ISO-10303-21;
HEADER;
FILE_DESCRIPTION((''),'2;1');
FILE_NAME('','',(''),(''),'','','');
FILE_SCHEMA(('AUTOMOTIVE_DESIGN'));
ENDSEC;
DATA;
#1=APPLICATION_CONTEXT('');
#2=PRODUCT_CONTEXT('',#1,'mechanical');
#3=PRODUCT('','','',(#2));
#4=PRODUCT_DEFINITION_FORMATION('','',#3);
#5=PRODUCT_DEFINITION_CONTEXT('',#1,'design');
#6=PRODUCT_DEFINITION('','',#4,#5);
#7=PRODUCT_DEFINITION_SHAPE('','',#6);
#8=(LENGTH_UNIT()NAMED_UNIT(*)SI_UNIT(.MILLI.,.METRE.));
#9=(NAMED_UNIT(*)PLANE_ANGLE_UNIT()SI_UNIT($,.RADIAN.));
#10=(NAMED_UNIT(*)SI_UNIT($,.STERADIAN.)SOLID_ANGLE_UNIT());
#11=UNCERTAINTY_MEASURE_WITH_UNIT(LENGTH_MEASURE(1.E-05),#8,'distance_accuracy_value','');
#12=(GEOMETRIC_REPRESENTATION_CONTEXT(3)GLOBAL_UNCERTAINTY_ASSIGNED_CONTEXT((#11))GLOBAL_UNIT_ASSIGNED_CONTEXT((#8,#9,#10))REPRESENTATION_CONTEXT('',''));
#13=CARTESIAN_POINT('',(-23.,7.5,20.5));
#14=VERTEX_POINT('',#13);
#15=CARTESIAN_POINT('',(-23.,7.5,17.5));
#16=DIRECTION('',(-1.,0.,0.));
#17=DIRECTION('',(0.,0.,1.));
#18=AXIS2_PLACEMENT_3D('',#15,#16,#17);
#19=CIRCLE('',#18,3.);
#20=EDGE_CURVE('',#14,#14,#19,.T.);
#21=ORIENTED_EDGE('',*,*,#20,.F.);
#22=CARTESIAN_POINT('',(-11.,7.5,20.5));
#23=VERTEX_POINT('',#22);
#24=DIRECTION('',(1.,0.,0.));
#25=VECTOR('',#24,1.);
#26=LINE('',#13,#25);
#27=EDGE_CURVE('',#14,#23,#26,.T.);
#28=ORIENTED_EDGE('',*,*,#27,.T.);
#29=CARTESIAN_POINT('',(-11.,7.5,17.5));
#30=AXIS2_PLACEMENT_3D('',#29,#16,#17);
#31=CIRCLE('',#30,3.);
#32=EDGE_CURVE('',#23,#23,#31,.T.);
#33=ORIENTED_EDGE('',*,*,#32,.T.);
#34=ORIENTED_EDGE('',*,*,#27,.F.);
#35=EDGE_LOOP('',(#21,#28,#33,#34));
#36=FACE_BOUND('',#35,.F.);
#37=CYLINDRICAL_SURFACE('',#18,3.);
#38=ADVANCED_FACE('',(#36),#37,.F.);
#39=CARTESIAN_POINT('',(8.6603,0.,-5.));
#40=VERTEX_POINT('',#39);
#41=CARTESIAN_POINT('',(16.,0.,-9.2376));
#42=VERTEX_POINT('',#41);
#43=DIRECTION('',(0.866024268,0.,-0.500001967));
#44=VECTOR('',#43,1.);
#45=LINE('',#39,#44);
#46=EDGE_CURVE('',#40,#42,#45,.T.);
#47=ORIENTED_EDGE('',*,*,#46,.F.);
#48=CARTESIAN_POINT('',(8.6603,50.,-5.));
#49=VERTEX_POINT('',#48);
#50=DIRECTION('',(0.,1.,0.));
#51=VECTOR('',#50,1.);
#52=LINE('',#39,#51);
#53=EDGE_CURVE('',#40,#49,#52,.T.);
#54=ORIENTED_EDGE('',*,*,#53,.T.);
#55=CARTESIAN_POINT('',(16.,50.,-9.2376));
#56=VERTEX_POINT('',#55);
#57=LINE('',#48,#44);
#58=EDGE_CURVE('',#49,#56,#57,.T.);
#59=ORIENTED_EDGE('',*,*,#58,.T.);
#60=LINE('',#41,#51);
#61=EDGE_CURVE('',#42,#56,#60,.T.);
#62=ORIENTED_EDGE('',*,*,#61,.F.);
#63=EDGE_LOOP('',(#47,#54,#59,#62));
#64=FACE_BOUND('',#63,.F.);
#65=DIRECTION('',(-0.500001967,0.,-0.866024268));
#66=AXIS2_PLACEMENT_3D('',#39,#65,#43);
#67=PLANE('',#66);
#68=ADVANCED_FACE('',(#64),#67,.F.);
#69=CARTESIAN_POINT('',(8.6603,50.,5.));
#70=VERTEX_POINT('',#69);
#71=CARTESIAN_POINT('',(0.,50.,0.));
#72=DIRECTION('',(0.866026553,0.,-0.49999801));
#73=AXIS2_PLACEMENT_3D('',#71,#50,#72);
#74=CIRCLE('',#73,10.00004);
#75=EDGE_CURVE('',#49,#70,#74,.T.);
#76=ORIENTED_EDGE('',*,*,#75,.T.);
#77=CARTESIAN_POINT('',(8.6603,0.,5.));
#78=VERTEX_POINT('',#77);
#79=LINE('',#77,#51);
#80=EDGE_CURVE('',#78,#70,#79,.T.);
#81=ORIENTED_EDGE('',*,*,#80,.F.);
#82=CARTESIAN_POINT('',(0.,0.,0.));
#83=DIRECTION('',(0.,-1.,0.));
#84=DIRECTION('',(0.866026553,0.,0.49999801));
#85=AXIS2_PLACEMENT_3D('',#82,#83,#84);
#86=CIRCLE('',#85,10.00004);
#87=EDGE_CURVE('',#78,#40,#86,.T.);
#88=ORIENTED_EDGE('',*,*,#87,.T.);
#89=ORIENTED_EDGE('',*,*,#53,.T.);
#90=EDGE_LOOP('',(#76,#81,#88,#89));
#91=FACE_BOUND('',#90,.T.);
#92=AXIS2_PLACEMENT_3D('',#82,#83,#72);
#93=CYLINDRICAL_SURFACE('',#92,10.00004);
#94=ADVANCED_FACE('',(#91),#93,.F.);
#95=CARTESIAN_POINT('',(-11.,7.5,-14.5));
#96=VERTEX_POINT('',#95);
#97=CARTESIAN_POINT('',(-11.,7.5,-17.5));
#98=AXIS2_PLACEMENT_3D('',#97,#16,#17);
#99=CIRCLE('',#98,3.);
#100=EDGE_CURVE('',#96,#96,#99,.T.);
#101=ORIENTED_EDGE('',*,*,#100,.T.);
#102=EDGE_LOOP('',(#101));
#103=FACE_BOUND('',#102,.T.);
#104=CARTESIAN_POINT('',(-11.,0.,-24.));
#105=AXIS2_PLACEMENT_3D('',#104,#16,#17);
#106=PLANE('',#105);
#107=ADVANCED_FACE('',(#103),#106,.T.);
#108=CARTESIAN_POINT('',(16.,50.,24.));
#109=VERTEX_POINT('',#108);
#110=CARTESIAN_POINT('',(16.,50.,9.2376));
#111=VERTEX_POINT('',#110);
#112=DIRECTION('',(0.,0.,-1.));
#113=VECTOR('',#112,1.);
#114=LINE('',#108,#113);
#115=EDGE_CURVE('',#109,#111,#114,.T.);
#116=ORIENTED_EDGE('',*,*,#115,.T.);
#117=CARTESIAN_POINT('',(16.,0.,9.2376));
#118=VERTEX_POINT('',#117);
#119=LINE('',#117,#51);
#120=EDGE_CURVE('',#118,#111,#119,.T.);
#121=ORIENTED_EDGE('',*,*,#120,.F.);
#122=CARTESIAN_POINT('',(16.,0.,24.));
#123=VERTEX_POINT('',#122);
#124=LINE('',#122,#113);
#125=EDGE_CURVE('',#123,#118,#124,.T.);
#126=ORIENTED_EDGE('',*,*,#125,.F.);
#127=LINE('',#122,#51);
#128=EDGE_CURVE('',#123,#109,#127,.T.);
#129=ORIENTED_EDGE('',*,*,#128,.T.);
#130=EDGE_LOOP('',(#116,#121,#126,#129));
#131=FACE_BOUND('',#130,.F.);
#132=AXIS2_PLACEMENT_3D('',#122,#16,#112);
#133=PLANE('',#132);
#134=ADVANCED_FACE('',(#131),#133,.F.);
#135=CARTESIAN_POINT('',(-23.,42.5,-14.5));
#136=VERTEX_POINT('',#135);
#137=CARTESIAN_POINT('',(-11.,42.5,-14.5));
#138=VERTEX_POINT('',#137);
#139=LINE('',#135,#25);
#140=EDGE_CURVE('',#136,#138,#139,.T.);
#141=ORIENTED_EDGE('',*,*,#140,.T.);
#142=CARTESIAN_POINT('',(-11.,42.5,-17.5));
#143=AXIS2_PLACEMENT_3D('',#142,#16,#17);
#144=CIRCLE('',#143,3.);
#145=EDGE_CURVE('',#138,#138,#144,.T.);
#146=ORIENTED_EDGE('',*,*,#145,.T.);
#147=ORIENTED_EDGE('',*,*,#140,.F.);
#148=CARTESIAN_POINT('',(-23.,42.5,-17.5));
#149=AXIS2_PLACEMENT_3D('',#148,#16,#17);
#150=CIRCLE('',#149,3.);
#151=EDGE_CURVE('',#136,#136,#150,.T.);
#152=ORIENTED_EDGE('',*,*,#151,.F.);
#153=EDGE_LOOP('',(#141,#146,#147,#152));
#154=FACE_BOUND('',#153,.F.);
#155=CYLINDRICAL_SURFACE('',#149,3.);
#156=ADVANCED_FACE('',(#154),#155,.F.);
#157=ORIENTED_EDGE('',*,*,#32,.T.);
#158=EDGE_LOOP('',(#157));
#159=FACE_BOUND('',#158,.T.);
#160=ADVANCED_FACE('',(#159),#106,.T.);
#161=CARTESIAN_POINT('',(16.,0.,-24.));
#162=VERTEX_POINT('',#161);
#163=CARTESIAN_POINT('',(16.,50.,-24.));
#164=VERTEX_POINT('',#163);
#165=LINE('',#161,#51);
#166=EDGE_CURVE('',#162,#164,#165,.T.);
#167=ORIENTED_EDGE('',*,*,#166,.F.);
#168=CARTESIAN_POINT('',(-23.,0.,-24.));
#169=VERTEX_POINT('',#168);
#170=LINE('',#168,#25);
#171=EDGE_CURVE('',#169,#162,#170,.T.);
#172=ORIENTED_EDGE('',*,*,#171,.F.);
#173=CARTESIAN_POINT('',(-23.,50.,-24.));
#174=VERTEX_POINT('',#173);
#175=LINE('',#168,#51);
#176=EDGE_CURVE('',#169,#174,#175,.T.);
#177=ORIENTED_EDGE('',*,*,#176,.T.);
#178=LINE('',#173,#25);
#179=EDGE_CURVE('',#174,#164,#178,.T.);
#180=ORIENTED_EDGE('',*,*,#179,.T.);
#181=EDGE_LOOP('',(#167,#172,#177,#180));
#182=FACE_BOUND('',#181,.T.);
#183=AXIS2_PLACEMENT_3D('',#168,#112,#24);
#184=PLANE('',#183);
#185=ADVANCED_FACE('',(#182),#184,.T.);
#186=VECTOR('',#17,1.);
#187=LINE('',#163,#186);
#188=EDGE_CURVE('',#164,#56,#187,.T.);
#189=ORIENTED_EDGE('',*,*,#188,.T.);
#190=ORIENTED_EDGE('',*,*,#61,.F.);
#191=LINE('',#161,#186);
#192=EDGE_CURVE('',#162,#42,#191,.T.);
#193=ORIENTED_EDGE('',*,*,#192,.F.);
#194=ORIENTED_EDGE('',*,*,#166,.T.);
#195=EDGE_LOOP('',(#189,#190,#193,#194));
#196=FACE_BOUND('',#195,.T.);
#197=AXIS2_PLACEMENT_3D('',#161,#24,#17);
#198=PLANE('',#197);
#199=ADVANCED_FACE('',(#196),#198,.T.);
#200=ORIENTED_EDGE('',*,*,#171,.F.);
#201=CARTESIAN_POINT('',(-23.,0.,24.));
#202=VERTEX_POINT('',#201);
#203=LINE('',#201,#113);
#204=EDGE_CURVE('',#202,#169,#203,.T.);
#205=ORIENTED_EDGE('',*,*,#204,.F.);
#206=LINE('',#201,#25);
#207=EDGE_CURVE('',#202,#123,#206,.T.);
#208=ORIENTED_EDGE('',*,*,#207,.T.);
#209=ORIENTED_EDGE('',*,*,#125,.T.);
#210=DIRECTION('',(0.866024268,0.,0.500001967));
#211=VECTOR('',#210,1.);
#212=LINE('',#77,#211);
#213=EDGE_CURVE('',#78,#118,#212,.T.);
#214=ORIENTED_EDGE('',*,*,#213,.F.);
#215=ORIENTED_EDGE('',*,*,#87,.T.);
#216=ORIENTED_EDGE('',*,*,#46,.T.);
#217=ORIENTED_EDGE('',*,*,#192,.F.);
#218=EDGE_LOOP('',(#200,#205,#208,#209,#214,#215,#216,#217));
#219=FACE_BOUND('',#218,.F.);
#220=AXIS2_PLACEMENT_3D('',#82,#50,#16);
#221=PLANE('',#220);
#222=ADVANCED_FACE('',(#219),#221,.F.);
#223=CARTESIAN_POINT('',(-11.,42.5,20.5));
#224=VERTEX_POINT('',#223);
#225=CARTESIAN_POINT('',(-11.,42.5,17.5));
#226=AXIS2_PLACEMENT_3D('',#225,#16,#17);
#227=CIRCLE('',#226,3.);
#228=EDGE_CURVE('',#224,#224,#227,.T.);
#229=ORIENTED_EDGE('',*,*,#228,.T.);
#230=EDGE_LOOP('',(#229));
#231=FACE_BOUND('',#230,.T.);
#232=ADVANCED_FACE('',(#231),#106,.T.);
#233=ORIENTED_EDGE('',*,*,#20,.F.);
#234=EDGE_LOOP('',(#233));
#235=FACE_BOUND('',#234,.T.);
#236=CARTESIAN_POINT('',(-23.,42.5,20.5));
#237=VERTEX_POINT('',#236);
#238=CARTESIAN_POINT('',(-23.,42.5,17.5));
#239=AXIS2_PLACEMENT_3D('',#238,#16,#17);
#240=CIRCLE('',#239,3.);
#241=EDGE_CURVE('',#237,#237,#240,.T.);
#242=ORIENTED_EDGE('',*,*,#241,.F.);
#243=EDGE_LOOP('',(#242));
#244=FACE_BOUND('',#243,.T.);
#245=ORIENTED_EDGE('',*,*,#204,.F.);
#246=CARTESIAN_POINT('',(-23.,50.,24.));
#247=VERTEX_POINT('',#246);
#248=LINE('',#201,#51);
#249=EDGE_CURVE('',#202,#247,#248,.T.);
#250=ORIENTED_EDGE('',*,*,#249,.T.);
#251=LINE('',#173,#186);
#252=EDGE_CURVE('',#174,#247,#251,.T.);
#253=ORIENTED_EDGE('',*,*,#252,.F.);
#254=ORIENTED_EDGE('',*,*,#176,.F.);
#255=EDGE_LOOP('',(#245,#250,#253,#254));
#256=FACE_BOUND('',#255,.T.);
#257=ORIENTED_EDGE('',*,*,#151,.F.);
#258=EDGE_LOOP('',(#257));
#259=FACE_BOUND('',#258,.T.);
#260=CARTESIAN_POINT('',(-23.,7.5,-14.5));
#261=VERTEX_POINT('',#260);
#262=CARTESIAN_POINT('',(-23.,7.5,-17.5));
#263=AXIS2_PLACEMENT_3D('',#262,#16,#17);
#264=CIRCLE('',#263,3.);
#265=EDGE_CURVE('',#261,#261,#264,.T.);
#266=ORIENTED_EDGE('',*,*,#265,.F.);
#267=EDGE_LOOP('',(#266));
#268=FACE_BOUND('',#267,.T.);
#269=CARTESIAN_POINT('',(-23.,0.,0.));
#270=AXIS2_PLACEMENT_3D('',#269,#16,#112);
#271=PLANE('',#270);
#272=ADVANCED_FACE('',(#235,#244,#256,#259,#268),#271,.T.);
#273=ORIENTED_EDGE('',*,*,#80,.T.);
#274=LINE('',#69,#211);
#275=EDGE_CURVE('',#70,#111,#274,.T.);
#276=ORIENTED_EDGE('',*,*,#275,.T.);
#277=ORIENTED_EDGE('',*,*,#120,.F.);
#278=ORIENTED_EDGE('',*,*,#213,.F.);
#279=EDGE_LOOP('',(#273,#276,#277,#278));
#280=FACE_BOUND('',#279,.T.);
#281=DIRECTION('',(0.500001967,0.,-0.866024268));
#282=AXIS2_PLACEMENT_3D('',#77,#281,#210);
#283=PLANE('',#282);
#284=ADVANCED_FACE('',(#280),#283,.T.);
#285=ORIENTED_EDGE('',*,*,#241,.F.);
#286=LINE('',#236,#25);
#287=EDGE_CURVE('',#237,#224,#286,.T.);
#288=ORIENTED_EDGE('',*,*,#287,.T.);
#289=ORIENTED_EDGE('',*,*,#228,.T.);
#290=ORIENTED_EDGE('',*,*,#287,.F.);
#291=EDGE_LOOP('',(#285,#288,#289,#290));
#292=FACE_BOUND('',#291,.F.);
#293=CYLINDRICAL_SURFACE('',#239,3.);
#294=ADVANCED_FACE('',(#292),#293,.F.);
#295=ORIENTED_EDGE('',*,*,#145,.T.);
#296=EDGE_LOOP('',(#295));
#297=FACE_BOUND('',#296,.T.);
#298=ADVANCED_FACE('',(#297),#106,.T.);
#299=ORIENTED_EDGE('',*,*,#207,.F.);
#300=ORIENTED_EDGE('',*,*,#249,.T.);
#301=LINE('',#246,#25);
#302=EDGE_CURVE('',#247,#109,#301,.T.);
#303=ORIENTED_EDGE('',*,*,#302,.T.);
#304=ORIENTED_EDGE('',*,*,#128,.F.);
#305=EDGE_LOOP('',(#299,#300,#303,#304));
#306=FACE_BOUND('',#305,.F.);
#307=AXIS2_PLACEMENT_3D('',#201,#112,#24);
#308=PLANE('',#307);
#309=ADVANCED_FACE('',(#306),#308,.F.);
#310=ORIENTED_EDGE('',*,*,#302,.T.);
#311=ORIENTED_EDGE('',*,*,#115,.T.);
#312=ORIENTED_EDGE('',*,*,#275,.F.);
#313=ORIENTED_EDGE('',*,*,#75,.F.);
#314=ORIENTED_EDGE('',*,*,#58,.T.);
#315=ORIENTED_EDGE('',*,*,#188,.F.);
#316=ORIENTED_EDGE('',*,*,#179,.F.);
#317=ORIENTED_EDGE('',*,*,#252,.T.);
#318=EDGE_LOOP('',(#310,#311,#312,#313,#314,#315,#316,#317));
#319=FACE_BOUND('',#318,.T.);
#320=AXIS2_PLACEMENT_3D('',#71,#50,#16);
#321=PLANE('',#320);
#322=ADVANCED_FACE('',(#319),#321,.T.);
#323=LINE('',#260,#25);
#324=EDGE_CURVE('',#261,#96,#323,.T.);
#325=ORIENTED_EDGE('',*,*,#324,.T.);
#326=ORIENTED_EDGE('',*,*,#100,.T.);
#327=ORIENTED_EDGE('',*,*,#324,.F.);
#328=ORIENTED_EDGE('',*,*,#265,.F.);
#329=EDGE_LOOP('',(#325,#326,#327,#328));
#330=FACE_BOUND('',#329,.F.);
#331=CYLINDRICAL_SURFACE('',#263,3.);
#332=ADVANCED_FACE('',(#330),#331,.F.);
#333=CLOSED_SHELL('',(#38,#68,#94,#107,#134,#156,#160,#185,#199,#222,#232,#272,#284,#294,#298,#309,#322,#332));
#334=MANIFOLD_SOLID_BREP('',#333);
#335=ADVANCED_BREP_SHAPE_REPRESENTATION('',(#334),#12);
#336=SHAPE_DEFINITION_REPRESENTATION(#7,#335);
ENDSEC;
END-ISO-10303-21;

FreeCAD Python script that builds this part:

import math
import FreeCAD as App
import Part
import Sketcher
from FreeCAD import Vector
Q = App.Units.Quantity

doc = App.newDocument("Part")
body = doc.addObject("PartDesign::Body", "Body")

# Sketch on XZ plane
sketch1 = body.newObject("Sketcher::SketchObject", "Sketch")
sketch1.AttachmentSupport = (doc.getObject("XZ_Plane"), [""])
sketch1.MapMode = "FlatFace"
sketch1.addGeometry([
    Part.LineSegment(Vector(8.6603, -5, 0), Vector(16, -9.2376, 0)),  # 0
    Part.LineSegment(Vector(16, -9.2376, 0), Vector(16, -24, 0)),  # 1
    Part.LineSegment(Vector(16, -24, 0), Vector(-23, -24, 0)),  # 2
    Part.LineSegment(Vector(-23, -24, 0), Vector(-23, 24, 0)),  # 3
    Part.LineSegment(Vector(-23, 24, 0), Vector(16, 24, 0)),  # 4
    Part.LineSegment(Vector(16, 24, 0), Vector(16, 9.2376, 0)),  # 5
    Part.LineSegment(Vector(16, 9.2376, 0), Vector(8.6603, 5, 0)),  # 6
    Part.ArcOfCircle(Part.Circle(Vector(0, 0, 0), Vector(0, 0, 1), 10.00004), math.radians(29.999868), math.radians(330.000132)),  # 7
], False)
sketch1.addConstraint([
    Sketcher.Constraint("Coincident", 0, 2, 1, 1),
    Sketcher.Constraint("Coincident", 1, 2, 2, 1),
    Sketcher.Constraint("Coincident", 2, 2, 3, 1),
    Sketcher.Constraint("Coincident", 3, 2, 4, 1),
    Sketcher.Constraint("Coincident", 4, 2, 5, 1),
    Sketcher.Constraint("Coincident", 5, 2, 6, 1),
    Sketcher.Constraint("Coincident", 6, 2, 7, 1),
    Sketcher.Constraint("Coincident", 7, 2, 0, 1),
    Sketcher.Constraint("Vertical", 1),
    Sketcher.Constraint("Horizontal", 2),
    Sketcher.Constraint("Vertical", 3),
    Sketcher.Constraint("Horizontal", 4),
    Sketcher.Constraint("Vertical", 5),
    Sketcher.Constraint("Coincident", 7, 3, -1, 1),
    Sketcher.Constraint("Symmetric", 1, 2, 4, 2, -1),
    Sketcher.Constraint("Vertical", 6, 2, 7, 2),
    Sketcher.Constraint("Equal", 1, 5),
    Sketcher.Constraint("Radius", 7, Q("10 mm")),
    Sketcher.Constraint("DistanceX", 2, 2, 2, 1, Q("39 mm")),
    Sketcher.Constraint("DistanceY", 1, 2, -1, 1, Q("24 mm")),
    Sketcher.Constraint("DistanceX", 2, 2, -1, 1, Q("23 mm")),
    Sketcher.Constraint("Angle", 0, Q("-30.0001 deg")),
    Sketcher.Constraint("DistanceY", -1, 1, 6, 2, Q("5 mm")),
])
pad1 = body.newObject("PartDesign::Pad", "Pad")
pad1.Profile = sketch1
pad1.Length = 50
pad1.Reversed = True

# Sketch on YZ plane
sketch2 = body.newObject("Sketcher::SketchObject", "Sketch001")
sketch2.AttachmentSupport = (doc.getObject("YZ_Plane"), [""])
sketch2.MapMode = "FlatFace"
sketch2.AttachmentOffset = App.Placement(Vector(0, 0, -23), App.Rotation())
sketch2.addGeometry([
    Part.Circle(Vector(42.5, -17.5, 0), Vector(0, 0, 1), 3),
    Part.Circle(Vector(7.5, -17.5, 0), Vector(0, 0, 1), 3),
    Part.Circle(Vector(7.5, 17.5, 0), Vector(0, 0, 1), 3),
    Part.Circle(Vector(42.5, 17.5, 0), Vector(0, 0, 1), 3),
], False)
sketch2.addConstraint([
    Sketcher.Constraint("Equal", 0, 1),
    Sketcher.Constraint("Equal", 1, 2),
    Sketcher.Constraint("Equal", 2, 3),
    Sketcher.Constraint("Symmetric", 1, 3, 2, 3, -1),
    Sketcher.Constraint("Symmetric", 0, 3, 3, 3, -1),
    Sketcher.Constraint("Horizontal", 0, 3, 1, 3),
    Sketcher.Constraint("Diameter", 0, Q("6 mm")),
    Sketcher.Constraint("DistanceX", 1, 3, 0, 3, Q("35 mm")),
    Sketcher.Constraint("DistanceY", 1, 3, 2, 3, Q("35 mm")),
    Sketcher.Constraint("DistanceX", -1, 1, 0, 3, Q("42.5 mm")),
])
pocket1 = body.newObject("PartDesign::Pocket", "Pocket")
pocket1.Profile = sketch2
pocket1.Length = 12
pocket1.Reversed = True

doc.recompute()
